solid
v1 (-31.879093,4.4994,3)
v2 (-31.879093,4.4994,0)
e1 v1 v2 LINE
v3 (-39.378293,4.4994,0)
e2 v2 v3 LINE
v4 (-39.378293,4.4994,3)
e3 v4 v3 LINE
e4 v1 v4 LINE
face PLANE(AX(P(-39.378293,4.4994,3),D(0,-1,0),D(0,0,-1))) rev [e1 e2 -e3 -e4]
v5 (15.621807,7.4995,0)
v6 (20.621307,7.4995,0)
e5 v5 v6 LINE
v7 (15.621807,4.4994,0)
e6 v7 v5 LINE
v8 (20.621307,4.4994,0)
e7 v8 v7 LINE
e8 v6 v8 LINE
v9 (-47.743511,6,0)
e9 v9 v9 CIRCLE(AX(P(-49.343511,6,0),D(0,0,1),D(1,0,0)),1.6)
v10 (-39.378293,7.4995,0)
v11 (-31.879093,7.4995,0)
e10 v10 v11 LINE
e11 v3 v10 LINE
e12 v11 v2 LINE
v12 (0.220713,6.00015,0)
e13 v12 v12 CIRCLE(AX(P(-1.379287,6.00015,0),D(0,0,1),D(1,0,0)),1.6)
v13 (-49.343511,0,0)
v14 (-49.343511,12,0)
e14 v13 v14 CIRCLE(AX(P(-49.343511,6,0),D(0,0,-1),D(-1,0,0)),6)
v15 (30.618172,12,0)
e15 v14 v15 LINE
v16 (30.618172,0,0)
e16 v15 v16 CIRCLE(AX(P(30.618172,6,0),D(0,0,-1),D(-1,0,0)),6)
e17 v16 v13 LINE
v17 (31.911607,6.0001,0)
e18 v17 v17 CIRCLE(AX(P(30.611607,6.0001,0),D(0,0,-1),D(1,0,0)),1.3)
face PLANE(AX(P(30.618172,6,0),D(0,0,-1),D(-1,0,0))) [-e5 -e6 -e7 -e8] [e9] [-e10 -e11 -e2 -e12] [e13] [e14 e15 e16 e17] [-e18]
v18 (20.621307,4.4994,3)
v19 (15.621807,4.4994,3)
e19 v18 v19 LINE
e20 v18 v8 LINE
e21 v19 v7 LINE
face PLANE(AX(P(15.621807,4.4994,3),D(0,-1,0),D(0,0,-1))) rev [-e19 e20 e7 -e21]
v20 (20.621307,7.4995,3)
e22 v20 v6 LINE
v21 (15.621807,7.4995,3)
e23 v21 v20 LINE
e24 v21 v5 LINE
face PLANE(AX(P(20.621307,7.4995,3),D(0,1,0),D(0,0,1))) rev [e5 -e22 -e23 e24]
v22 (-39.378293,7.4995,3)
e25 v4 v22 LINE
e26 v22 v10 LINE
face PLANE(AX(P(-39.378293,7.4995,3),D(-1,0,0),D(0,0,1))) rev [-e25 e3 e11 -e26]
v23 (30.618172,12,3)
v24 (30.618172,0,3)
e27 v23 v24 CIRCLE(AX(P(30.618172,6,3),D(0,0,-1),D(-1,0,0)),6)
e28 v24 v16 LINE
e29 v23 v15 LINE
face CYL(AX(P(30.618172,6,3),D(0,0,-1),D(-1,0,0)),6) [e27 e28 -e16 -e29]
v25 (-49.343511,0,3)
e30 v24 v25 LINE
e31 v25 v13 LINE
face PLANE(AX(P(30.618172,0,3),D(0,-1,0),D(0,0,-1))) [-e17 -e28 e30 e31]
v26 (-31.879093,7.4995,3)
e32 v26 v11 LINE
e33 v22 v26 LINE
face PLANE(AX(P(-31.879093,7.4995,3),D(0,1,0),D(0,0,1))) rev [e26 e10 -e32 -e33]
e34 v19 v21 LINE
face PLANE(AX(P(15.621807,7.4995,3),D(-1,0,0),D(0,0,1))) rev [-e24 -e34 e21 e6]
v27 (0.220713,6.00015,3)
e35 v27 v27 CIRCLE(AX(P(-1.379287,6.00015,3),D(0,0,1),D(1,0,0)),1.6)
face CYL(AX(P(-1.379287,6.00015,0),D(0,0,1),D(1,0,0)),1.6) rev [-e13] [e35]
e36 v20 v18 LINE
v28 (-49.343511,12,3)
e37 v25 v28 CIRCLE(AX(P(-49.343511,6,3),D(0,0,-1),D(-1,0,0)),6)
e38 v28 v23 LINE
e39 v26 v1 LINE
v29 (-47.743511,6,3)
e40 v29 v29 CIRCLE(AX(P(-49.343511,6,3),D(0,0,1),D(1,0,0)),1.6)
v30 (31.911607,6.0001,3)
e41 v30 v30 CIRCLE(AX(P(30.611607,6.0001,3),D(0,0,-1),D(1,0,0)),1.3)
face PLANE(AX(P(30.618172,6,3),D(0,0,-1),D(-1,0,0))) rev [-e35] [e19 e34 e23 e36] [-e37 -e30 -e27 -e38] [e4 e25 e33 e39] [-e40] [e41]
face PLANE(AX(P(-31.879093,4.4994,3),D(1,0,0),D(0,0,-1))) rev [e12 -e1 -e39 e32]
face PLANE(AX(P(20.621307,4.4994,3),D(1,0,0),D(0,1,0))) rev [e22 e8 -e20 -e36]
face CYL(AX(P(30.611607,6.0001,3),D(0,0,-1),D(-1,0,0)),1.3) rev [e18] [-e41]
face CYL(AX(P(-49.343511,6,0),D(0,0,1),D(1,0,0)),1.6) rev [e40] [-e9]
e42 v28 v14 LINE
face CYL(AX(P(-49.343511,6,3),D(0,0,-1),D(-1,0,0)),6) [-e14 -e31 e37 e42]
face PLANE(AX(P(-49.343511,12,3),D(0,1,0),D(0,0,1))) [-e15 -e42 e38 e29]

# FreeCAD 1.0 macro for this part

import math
import FreeCAD as App
import Part
import Sketcher
from FreeCAD import Vector

doc = App.newDocument("Part")
body = doc.addObject("PartDesign::Body", "Body")

# Sketch on XY plane
sketch1 = doc.addObject("Sketcher::SketchObject", "Sketch")
body.addObject(sketch1)
sketch1.AttachmentSupport = (doc.XY_Plane, [""])
sketch1.MapMode = "FlatFace"
sketch1.addGeometry([
    Part.LineSegment(Vector(30.618172, 0, 0), Vector(-49.343511, 0, 0)),  # 0
    Part.ArcOfCircle(Part.Circle(Vector(-49.343511, 6, 0), Vector(0, 0, 1), 6), math.radians(90), math.radians(270)),  # 1
    Part.LineSegment(Vector(-49.343511, 12, 0), Vector(30.618172, 12, 0)),  # 2
    Part.ArcOfCircle(Part.Circle(Vector(30.618172, 6, 0), Vector(0, 0, 1), 6), math.radians(-90), math.radians(90)),  # 3
    Part.Circle(Vector(30.611607, 6.0001, 0), Vector(0, 0, 1), 1.3),  # 4
    Part.LineSegment(Vector(15.621807, 4.4994, 0), Vector(20.621307, 4.4994, 0)),  # 5
    Part.LineSegment(Vector(20.621307, 4.4994, 0), Vector(20.621307, 7.4995, 0)),  # 6
    Part.LineSegment(Vector(20.621307, 7.4995, 0), Vector(15.621807, 7.4995, 0)),  # 7
    Part.LineSegment(Vector(15.621807, 7.4995, 0), Vector(15.621807, 4.4994, 0)),  # 8
    Part.Circle(Vector(-1.379287, 6.00015, 0), Vector(0, 0, 1), 1.3),  # 9
    Part.LineSegment(Vector(-39.378293, 4.4994, 0), Vector(-31.879093, 4.4994, 0)),  # 10
    Part.LineSegment(Vector(-31.879093, 4.4994, 0), Vector(-31.879093, 7.4995, 0)),  # 11
    Part.LineSegment(Vector(-31.879093, 7.4995, 0), Vector(-39.378293, 7.4995, 0)),  # 12
    Part.LineSegment(Vector(-39.378293, 7.4995, 0), Vector(-39.378293, 4.4994, 0)),  # 13
    Part.Circle(Vector(-49.343511, 6, 0), Vector(0, 0, 1), 1.3),  # 14
], False)
sketch1.addConstraint([
    Sketcher.Constraint("Tangent", 0, 2, 1, 2),
    Sketcher.Constraint("Tangent", 1, 1, 2, 1),
    Sketcher.Constraint("Tangent", 2, 2, 3, 2),
    Sketcher.Constraint("Tangent", 3, 1, 0, 1),
    Sketcher.Constraint("Coincident", 5, 2, 6, 1),
    Sketcher.Constraint("Coincident", 6, 2, 7, 1),
    Sketcher.Constraint("Coincident", 7, 2, 8, 1),
    Sketcher.Constraint("Coincident", 8, 2, 5, 1),
    Sketcher.Constraint("Coincident", 10, 2, 11, 1),
    Sketcher.Constraint("Coincident", 11, 2, 12, 1),
    Sketcher.Constraint("Coincident", 12, 2, 13, 1),
    Sketcher.Constraint("Coincident", 13, 2, 10, 1),
    Sketcher.Constraint("Horizontal", 0),
    Sketcher.Constraint("Horizontal", 2),
    Sketcher.Constraint("Horizontal", 5),
    Sketcher.Constraint("Vertical", 6),
    Sketcher.Constraint("Horizontal", 7),
    Sketcher.Constraint("Vertical", 8),
    Sketcher.Constraint("Horizontal", 10),
    Sketcher.Constraint("Vertical", 11),
    Sketcher.Constraint("Horizontal", 12),
    Sketcher.Constraint("Vertical", 13),
    Sketcher.Constraint("Coincident", 14, 3, 1, 3),
    Sketcher.Constraint("Equal", 4, 9),
    Sketcher.Constraint("Equal", 9, 14),
    Sketcher.Constraint("PointOnObject", 0, 2, -1),
    Sketcher.Constraint("Horizontal", 8, 2, 10, 2),
    Sketcher.Constraint("Horizontal", 7, 2, 11, 2),
    Sketcher.Constraint("Radius", 1, 6.0),
    Sketcher.Constraint("Diameter", 4, 2.6),
    Sketcher.Constraint("DistanceX", 5, 1, 5, 2, 4.9995),
    Sketcher.Constraint("DistanceX", 10, 1, 10, 2, 7.4992),
    Sketcher.Constraint("DistanceY", 6, 1, 6, 2, 3.0001),
    Sketcher.Constraint("DistanceY", -1, 1, 4, 3, 6.0001),
    Sketcher.Constraint("DistanceY", -1, 1, 5, 2, 4.4994),
    Sketcher.Constraint("DistanceX", 5, 2, 4, 3, 9.9903),
    Sketcher.Constraint("DistanceX", 0, 2, 0, 1, 79.961683),
    Sketcher.Constraint("DistanceX", 1, 3, -1, 1, 49.343511),
    Sketcher.Constraint("DistanceY", -1, 1, 9, 3, 6.00015),
    Sketcher.Constraint("DistanceX", 9, 3, 3, 3, 31.997459),
    Sketcher.Constraint("DistanceX", -1, 1, 4, 3, 30.611607),
    Sketcher.Constraint("DistanceX", 10, 2, -1, 1, 31.879093),
])
pad1 = doc.addObject("PartDesign::Pad", "Pad")
body.addObject(pad1)
pad1.Profile = sketch1
pad1.Length = 3

# Sketch on XY plane
sketch2 = doc.addObject("Sketcher::SketchObject", "Sketch001")
body.addObject(sketch2)
sketch2.AttachmentSupport = (doc.XY_Plane, [""])
sketch2.MapMode = "FlatFace"
sketch2.AttachmentOffset = App.Placement(Vector(0, 0, 3), App.Rotation())
sketch2.addGeometry([
    Part.Circle(Vector(-49.343511, 6, 0), Vector(0, 0, 1), 1.6),
    Part.Circle(Vector(-1.379287, 6.00015, 0), Vector(0, 0, 1), 1.6),
], False)
sketch2.addConstraint([
    Sketcher.Constraint("Equal", 0, 1),
    Sketcher.Constraint("Diameter", 0, 3.2),
    Sketcher.Constraint("DistanceY", -1, 1, 0, 3, 6.0),
    Sketcher.Constraint("DistanceX", 0, 3, -1, 1, 49.343511),
    Sketcher.Constraint("DistanceY", -1, 1, 1, 3, 6.00015),
    Sketcher.Constraint("DistanceX", 1, 3, -1, 1, 1.379287),
])
pocket1 = doc.addObject("PartDesign::Pocket", "Pocket")
body.addObject(pocket1)
pocket1.Profile = sketch2
pocket1.Type = "ThroughAll"

doc.recompute()
